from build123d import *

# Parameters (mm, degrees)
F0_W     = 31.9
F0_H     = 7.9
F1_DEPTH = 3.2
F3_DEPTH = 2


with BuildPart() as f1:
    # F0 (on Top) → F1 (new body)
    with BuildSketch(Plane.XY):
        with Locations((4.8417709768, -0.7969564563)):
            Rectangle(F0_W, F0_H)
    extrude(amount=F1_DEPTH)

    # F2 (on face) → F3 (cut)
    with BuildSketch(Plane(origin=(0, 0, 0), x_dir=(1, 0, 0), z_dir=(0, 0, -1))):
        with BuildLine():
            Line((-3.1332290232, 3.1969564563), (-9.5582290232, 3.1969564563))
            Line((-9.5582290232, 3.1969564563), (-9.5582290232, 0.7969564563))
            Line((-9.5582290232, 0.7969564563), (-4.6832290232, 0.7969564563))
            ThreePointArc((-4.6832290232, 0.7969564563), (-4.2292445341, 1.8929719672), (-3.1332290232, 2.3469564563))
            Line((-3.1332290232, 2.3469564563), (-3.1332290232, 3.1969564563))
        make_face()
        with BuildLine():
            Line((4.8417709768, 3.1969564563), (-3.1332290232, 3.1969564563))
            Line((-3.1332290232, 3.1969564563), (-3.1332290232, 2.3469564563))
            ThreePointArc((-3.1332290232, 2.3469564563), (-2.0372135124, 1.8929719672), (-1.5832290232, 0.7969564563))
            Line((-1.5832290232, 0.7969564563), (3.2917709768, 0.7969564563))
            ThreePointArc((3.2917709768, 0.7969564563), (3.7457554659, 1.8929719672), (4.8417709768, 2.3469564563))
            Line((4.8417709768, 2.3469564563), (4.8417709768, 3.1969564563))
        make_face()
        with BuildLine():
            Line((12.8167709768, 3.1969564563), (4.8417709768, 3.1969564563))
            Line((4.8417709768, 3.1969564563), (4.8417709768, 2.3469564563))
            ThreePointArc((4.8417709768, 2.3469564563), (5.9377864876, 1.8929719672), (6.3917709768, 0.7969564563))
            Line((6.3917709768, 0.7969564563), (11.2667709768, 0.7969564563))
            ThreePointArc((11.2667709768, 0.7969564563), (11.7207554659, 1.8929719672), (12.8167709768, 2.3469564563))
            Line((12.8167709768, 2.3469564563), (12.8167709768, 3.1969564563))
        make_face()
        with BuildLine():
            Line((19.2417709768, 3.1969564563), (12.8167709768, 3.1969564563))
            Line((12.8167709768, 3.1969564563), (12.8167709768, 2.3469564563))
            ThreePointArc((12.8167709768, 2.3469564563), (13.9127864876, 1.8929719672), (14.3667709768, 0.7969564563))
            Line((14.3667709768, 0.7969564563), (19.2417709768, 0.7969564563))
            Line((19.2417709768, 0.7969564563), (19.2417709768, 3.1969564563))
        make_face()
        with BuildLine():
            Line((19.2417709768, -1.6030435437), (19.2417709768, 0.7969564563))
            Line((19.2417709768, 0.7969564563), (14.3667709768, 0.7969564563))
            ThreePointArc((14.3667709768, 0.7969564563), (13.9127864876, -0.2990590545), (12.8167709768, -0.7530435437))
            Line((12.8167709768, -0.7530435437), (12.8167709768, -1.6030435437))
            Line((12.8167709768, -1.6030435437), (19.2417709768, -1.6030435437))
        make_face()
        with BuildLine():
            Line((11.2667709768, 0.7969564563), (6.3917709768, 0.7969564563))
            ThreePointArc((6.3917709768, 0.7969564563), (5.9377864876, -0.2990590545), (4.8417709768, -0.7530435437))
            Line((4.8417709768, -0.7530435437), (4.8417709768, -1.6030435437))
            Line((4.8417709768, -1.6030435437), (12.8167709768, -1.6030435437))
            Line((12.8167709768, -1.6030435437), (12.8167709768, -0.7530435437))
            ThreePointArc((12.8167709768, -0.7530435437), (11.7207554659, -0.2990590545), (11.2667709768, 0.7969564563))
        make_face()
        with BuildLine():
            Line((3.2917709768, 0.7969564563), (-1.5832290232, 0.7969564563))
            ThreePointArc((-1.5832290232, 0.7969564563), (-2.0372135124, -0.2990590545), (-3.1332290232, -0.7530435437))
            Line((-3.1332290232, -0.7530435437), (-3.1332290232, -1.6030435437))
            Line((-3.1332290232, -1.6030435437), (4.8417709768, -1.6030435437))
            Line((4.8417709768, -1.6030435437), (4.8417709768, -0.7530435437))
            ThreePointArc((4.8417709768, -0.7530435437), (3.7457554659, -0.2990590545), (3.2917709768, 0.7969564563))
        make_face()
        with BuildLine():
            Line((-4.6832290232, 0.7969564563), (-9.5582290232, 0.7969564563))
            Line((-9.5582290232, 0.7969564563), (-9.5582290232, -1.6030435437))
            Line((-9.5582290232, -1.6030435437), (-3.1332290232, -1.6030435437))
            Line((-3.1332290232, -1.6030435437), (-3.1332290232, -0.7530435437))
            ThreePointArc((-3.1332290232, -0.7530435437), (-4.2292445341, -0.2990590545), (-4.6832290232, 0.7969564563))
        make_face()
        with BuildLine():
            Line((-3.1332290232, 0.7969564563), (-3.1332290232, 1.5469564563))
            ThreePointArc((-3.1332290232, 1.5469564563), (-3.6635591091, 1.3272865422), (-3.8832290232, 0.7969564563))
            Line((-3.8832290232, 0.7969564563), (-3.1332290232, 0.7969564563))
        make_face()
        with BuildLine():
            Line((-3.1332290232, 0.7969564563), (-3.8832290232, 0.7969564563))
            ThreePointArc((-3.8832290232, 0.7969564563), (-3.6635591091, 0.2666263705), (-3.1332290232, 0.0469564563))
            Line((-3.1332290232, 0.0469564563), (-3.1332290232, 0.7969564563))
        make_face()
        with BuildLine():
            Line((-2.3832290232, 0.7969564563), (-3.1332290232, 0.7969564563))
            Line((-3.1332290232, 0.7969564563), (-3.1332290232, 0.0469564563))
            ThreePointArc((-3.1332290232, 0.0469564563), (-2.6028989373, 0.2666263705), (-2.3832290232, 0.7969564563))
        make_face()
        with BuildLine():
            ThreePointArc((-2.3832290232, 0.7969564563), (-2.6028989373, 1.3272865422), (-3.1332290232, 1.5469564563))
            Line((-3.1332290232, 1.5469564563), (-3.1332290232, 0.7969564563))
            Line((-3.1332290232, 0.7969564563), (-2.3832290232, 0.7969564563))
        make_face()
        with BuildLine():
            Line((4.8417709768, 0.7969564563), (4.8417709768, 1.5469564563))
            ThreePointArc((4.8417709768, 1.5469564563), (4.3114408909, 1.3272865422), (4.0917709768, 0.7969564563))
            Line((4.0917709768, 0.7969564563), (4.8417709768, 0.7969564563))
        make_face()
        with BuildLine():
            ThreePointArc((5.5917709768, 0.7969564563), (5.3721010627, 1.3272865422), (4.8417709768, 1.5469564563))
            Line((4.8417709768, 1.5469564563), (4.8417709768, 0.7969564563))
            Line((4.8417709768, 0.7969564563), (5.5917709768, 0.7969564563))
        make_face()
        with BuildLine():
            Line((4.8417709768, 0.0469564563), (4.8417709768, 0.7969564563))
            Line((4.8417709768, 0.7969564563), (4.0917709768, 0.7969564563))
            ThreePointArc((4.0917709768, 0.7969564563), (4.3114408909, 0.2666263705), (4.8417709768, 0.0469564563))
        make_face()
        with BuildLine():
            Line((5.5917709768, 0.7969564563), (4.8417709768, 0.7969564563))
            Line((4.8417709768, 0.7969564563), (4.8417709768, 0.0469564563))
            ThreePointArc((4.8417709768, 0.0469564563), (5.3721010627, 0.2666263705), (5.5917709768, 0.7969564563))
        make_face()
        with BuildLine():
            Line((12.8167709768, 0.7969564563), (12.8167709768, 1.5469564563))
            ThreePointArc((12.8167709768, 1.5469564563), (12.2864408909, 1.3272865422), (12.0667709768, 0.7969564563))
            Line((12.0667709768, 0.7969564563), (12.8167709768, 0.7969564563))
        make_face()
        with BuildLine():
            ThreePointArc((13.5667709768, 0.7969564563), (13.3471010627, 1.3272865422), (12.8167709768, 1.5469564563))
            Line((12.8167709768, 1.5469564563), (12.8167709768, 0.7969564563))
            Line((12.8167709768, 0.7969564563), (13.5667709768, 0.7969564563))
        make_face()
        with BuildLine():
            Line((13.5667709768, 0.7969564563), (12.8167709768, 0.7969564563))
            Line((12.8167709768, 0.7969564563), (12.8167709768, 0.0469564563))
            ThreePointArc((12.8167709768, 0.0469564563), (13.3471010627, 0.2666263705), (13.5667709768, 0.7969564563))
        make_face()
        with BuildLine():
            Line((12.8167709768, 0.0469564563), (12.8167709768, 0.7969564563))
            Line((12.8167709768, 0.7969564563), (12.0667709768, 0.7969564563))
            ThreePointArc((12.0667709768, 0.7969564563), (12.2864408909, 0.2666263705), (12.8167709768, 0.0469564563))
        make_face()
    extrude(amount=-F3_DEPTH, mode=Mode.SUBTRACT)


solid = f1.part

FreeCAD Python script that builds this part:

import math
import FreeCAD as App
import Part
import Sketcher


def add_polygon(sketch, points):
    """Adds a closed chain of lines whose ends are joined by coincident constraints."""
    first, n = sketch.GeometryCount, len(points)
    for a, b in zip(points, points[1:] + points[:1]):
        sketch.addGeometry(Part.LineSegment(App.Vector(*a, 0), App.Vector(*b, 0)), False)
    for i in range(n):
        sketch.addConstraint(Sketcher.Constraint("Coincident", first + i, 2, first + (i + 1) % n, 1))

doc = App.newDocument("Part")
body = doc.addObject("PartDesign::Body", "Body")

sketch1 = doc.addObject("Sketcher::SketchObject", "Sketch")
body.addObject(sketch1)
sketch1.AttachmentSupport = (doc.XY_Plane, [""])
sketch1.MapMode = "FlatFace"
add_polygon(sketch1, [(-11, 3), (-11, -5), (21, -5), (21, 3)])
sketch1.addConstraint([
    Sketcher.Constraint("Vertical", 0),
    Sketcher.Constraint("Horizontal", 1),
    Sketcher.Constraint("Vertical", 2),
    Sketcher.Constraint("Horizontal", 3),
    Sketcher.Constraint("DistanceX", 1, 1, 1, 2, 31.9),
    Sketcher.Constraint("DistanceY", 0, 2, 0, 1, 7.9),
    Sketcher.Constraint("DistanceX", 0, 2, -1, 1, 11.108229),
    Sketcher.Constraint("DistanceY", 0, 2, -1, 1, 4.746956),
])
pad1 = doc.addObject("PartDesign::Pad", "Pad")
body.addObject(pad1)
pad1.Profile = sketch1
pad1.Length = 3.2

sketch2 = doc.addObject("Sketcher::SketchObject", "Sketch001")
body.addObject(sketch2)
sketch2.AttachmentSupport = (doc.XY_Plane, [""])
sketch2.MapMode = "FlatFace"
add_polygon(sketch2, [(-9.6, -3.2), (-9.6, 1.6), (19.2, 1.6), (19.2, -3.2)])
sketch2.addGeometry(Part.ArcOfCircle(Part.Circle(App.Vector(-3.1, -0.8, 0), App.Vector(0, 0, 1), 1.6), math.radians(180), math.radians(270)), False)
sketch2.addGeometry(Part.ArcOfCircle(Part.Circle(App.Vector(-3.1, -0.8, 0), App.Vector(0, 0, 1), 1.6), math.radians(-90), math.radians(0)), False)
sketch2.addGeometry(Part.ArcOfCircle(Part.Circle(App.Vector(-3.1, -0.8, 0), App.Vector(0, 0, 1), 1.6), math.radians(0), math.radians(90)), False)
sketch2.addGeometry(Part.ArcOfCircle(Part.Circle(App.Vector(-3.1, -0.8, 0), App.Vector(0, 0, 1), 1.6), math.radians(90), math.radians(180)), False)
sketch2.addGeometry(Part.ArcOfCircle(Part.Circle(App.Vector(4.8, -0.8, 0), App.Vector(0, 0, 1), 1.6), math.radians(180), math.radians(270)), False)
sketch2.addGeometry(Part.ArcOfCircle(Part.Circle(App.Vector(4.8, -0.8, 0), App.Vector(0, 0, 1), 1.6), math.radians(-90), math.radians(0)), False)
sketch2.addGeometry(Part.ArcOfCircle(Part.Circle(App.Vector(4.8, -0.8, 0), App.Vector(0, 0, 1), 1.6), math.radians(0), math.radians(90)), False)
sketch2.addGeometry(Part.ArcOfCircle(Part.Circle(App.Vector(4.8, -0.8, 0), App.Vector(0, 0, 1), 1.6), math.radians(90), math.radians(180)), False)
sketch2.addGeometry(Part.ArcOfCircle(Part.Circle(App.Vector(12.8, -0.8, 0), App.Vector(0, 0, 1), 1.6), math.radians(180), math.radians(270)), False)
sketch2.addGeometry(Part.ArcOfCircle(Part.Circle(App.Vector(12.8, -0.8, 0), App.Vector(0, 0, 1), 1.6), math.radians(-90), math.radians(0)), False)
sketch2.addGeometry(Part.ArcOfCircle(Part.Circle(App.Vector(12.8, -0.8, 0), App.Vector(0, 0, 1), 1.6), math.radians(0), math.radians(90)), False)
sketch2.addGeometry(Part.ArcOfCircle(Part.Circle(App.Vector(12.8, -0.8, 0), App.Vector(0, 0, 1), 1.6), math.radians(90), math.radians(180)), False)
sketch2.addGeometry(Part.ArcOfCircle(Part.Circle(App.Vector(-3.1, -0.8, 0), App.Vector(0, 0, 1), 0.8), math.radians(180), math.radians(270)), False)
sketch2.addGeometry(Part.ArcOfCircle(Part.Circle(App.Vector(-3.1, -0.8, 0), App.Vector(0, 0, 1), 0.8), math.radians(90), math.radians(180)), False)
sketch2.addGeometry(Part.ArcOfCircle(Part.Circle(App.Vector(-3.1, -0.8, 0), App.Vector(0, 0, 1), 0.8), math.radians(0), math.radians(90)), False)
sketch2.addGeometry(Part.ArcOfCircle(Part.Circle(App.Vector(-3.1, -0.8, 0), App.Vector(0, 0, 1), 0.8), math.radians(-90), math.radians(0)), False)
sketch2.addGeometry(Part.ArcOfCircle(Part.Circle(App.Vector(4.8, -0.8, 0), App.Vector(0, 0, 1), 0.8), math.radians(180), math.radians(270)), False)
sketch2.addGeometry(Part.ArcOfCircle(Part.Circle(App.Vector(4.8, -0.8, 0), App.Vector(0, 0, 1), 0.8), math.radians(90), math.radians(180)), False)
sketch2.addGeometry(Part.ArcOfCircle(Part.Circle(App.Vector(4.8, -0.8, 0), App.Vector(0, 0, 1), 0.8), math.radians(0), math.radians(90)), False)
sketch2.addGeometry(Part.ArcOfCircle(Part.Circle(App.Vector(4.8, -0.8, 0), App.Vector(0, 0, 1), 0.8), math.radians(-90), math.radians(0)), False)
sketch2.addGeometry(Part.ArcOfCircle(Part.Circle(App.Vector(12.8, -0.8, 0), App.Vector(0, 0, 1), 0.8), math.radians(180), math.radians(270)), False)
sketch2.addGeometry(Part.ArcOfCircle(Part.Circle(App.Vector(12.8, -0.8, 0), App.Vector(0, 0, 1), 0.8), math.radians(90), math.radians(180)), False)
sketch2.addGeometry(Part.ArcOfCircle(Part.Circle(App.Vector(12.8, -0.8, 0), App.Vector(0, 0, 1), 0.8), math.radians(0), math.radians(90)), False)
sketch2.addGeometry(Part.ArcOfCircle(Part.Circle(App.Vector(12.8, -0.8, 0), App.Vector(0, 0, 1), 0.8), math.radians(-90), math.radians(0)), False)
sketch2.addConstraint([
    Sketcher.Constraint("Tangent", 4, 2, 5, 1),
    Sketcher.Constraint("Tangent", 5, 2, 6, 1),
    Sketcher.Constraint("Tangent", 6, 2, 7, 1),
    Sketcher.Constraint("Tangent", 7, 2, 4, 1),
    Sketcher.Constraint("Tangent", 8, 2, 9, 1),
    Sketcher.Constraint("Tangent", 9, 2, 10, 1),
    Sketcher.Constraint("Tangent", 10, 2, 11, 1),
    Sketcher.Constraint("Tangent", 11, 2, 8, 1),
    Sketcher.Constraint("Tangent", 12, 2, 13, 1),
    Sketcher.Constraint("Tangent", 13, 2, 14, 1),
    Sketcher.Constraint("Tangent", 14, 2, 15, 1),
    Sketcher.Constraint("Tangent", 15, 2, 12, 1),
    Sketcher.Constraint("Tangent", 16, 1, 17, 2),
    Sketcher.Constraint("Tangent", 17, 1, 18, 2),
    Sketcher.Constraint("Tangent", 18, 1, 19, 2),
    Sketcher.Constraint("Tangent", 19, 1, 16, 2),
    Sketcher.Constraint("Tangent", 20, 1, 21, 2),
    Sketcher.Constraint("Tangent", 21, 1, 22, 2),
    Sketcher.Constraint("Tangent", 22, 1, 23, 2),
    Sketcher.Constraint("Tangent", 23, 1, 20, 2),
    Sketcher.Constraint("Tangent", 24, 1, 25, 2),
    Sketcher.Constraint("Tangent", 25, 1, 26, 2),
    Sketcher.Constraint("Tangent", 26, 1, 27, 2),
    Sketcher.Constraint("Tangent", 27, 1, 24, 2),
    Sketcher.Constraint("Vertical", 0),
    Sketcher.Constraint("Horizontal", 1),
    Sketcher.Constraint("Vertical", 2),
    Sketcher.Constraint("Horizontal", 3),
    Sketcher.Constraint("Coincident", 16, 3, 4, 3),
    Sketcher.Constraint("Coincident", 20, 3, 8, 3),
    Sketcher.Constraint("Coincident", 24, 3, 12, 3),
    Sketcher.Constraint("Equal", 4, 5),
    Sketcher.Constraint("Equal", 7, 8),
    Sketcher.Constraint("Equal", 8, 9),
    Sketcher.Constraint("Equal", 11, 12),
    Sketcher.Constraint("Equal", 12, 13),
    Sketcher.Constraint("Equal", 16, 17),
    Sketcher.Constraint("Equal", 19, 20),
    Sketcher.Constraint("Equal", 20, 21),
    Sketcher.Constraint("Equal", 23, 24),
    Sketcher.Constraint("Equal", 24, 25),
    Sketcher.Constraint("Horizontal", 7, 3, 8, 3),
    Sketcher.Constraint("Horizontal", 11, 3, 12, 3),
    Sketcher.Constraint("Horizontal", 27, 3, 5, 2),
    Sketcher.Constraint("Horizontal", 5, 2, 7, 2),
    Sketcher.Constraint("Horizontal", 7, 2, 9, 2),
    Sketcher.Constraint("Horizontal", 9, 2, 11, 2),
    Sketcher.Constraint("Horizontal", 11, 2, 13, 2),
    Sketcher.Constraint("Horizontal", 13, 2, 15, 2),
    Sketcher.Constraint("Horizontal", 15, 2, 16, 1),
    Sketcher.Constraint("Horizontal", 16, 1, 18, 1),
    Sketcher.Constraint("Horizontal", 18, 1, 20, 1),
    Sketcher.Constraint("Horizontal", 20, 1, 22, 1),
    Sketcher.Constraint("Horizontal", 22, 1, 24, 1),
    Sketcher.Constraint("Horizontal", 24, 1, 26, 1),
    Sketcher.Constraint("Vertical", 19, 3, 4, 2),
    Sketcher.Constraint("Vertical", 4, 2, 6, 2),
    Sketcher.Constraint("Vertical", 23, 3, 8, 2),
    Sketcher.Constraint("Vertical", 8, 2, 10, 2),
    Sketcher.Constraint("Vertical", 27, 3, 12, 2),
    Sketcher.Constraint("Vertical", 12, 2, 14, 2),
    Sketcher.Constraint("Vertical", 6, 2, 17, 1),
    Sketcher.Constraint("Vertical", 17, 1, 19, 1),
    Sketcher.Constraint("Vertical", 10, 2, 21, 1),
    Sketcher.Constraint("Vertical", 21, 1, 23, 1),
    Sketcher.Constraint("Vertical", 14, 2, 25, 1),
    Sketcher.Constraint("Vertical", 25, 1, 27, 1),
    Sketcher.Constraint("Radius", 4, 1.55),
    Sketcher.Constraint("Radius", 16, 0.75),
    Sketcher.Constraint("DistanceX", 1, 1, 1, 2, 28.8),
    Sketcher.Constraint("DistanceY", 0, 1, 0, 2, 4.8),
    Sketcher.Constraint("DistanceY", 5, 3, 0, 2, 2.4),
    Sketcher.Constraint("DistanceX", 4, 3, 12, 3, 15.95),
    Sketcher.Constraint("DistanceX", 4, 3, 8, 3, 7.975),
    Sketcher.Constraint("DistanceX", 0, 2, 5, 3, 6.425),
    Sketcher.Constraint("DistanceX", 4, 3, -1, 1, 3.133229),
    Sketcher.Constraint("DistanceY", 4, 3, -1, 1, 0.796956),
])
pocket1 = doc.addObject("PartDesign::Pocket", "Pocket")
body.addObject(pocket1)
pocket1.Profile = sketch2
pocket1.Length = 2
pocket1.Reversed = True

doc.recompute()
